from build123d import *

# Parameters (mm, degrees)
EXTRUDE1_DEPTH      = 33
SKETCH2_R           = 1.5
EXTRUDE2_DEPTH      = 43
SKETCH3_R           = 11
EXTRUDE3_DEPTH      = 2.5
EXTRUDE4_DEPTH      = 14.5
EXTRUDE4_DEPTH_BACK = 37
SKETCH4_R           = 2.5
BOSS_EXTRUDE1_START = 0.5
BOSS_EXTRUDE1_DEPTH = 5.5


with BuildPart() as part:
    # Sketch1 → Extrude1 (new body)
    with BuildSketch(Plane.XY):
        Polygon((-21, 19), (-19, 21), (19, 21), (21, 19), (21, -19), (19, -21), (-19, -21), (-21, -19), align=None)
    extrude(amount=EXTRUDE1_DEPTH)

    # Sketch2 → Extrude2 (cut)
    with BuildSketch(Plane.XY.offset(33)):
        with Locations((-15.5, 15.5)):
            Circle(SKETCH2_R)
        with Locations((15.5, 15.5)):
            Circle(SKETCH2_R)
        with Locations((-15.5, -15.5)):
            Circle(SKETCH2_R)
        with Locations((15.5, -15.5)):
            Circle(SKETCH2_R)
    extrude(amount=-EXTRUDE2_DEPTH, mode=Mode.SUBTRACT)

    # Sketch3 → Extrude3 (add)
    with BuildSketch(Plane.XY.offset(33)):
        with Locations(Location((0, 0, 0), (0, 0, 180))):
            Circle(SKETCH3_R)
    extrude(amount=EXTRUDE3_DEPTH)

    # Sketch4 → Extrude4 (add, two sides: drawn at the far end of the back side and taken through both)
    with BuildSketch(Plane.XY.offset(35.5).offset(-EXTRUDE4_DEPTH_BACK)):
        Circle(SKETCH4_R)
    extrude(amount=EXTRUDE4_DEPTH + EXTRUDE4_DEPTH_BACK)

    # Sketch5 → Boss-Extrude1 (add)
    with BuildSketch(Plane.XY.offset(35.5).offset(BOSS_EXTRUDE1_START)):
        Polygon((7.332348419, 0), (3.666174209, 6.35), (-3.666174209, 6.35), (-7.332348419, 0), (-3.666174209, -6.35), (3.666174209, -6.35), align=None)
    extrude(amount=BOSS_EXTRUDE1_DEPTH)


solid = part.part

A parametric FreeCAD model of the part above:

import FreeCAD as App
import Part
import Sketcher
Q = App.Units.Quantity

doc = App.newDocument("Part")
body = doc.addObject("PartDesign::Body", "Body")

sketch1 = body.newObject("Sketcher::SketchObject", "Sketch")
sketch1.AttachmentSupport = (doc.getObject("XY_Plane"), [""])
sketch1.MapMode = "FlatFace"
sketch1.addGeometry([
    Part.LineSegment(App.Vector(-19, 21, 0), App.Vector(-21, 19, 0)),
    Part.LineSegment(App.Vector(-21, 19, 0), App.Vector(-21, -19, 0)),
    Part.LineSegment(App.Vector(-21, -19, 0), App.Vector(-19, -21, 0)),
    Part.LineSegment(App.Vector(-19, -21, 0), App.Vector(19, -21, 0)),
    Part.LineSegment(App.Vector(19, -21, 0), App.Vector(21, -19, 0)),
    Part.LineSegment(App.Vector(21, -19, 0), App.Vector(21, 19, 0)),
    Part.LineSegment(App.Vector(21, 19, 0), App.Vector(19, 21, 0)),
    Part.LineSegment(App.Vector(19, 21, 0), App.Vector(-19, 21, 0)),
], False)
sketch1.addConstraint([
    Sketcher.Constraint("Coincident", 0, 2, 1, 1),
    Sketcher.Constraint("Coincident", 1, 2, 2, 1),
    Sketcher.Constraint("Coincident", 2, 2, 3, 1),
    Sketcher.Constraint("Coincident", 3, 2, 4, 1),
    Sketcher.Constraint("Coincident", 4, 2, 5, 1),
    Sketcher.Constraint("Coincident", 5, 2, 6, 1),
    Sketcher.Constraint("Coincident", 6, 2, 7, 1),
    Sketcher.Constraint("Coincident", 7, 2, 0, 1),
    Sketcher.Constraint("Vertical", 1),
    Sketcher.Constraint("Horizontal", 3),
    Sketcher.Constraint("Vertical", 5),
    Sketcher.Constraint("Horizontal", 7),
    Sketcher.Constraint("Symmetric", 0, 2, 4, 2, -1, 1),
    Sketcher.Constraint("Symmetric", 2, 2, 6, 2, -1, 1),
    Sketcher.Constraint("Perpendicular", 0, 2),
    Sketcher.Constraint("Perpendicular", 2, 4),
    Sketcher.Constraint("Perpendicular", 4, 6),
    Sketcher.Constraint("Horizontal", 1, 2, 4, 2),
    Sketcher.Constraint("Vertical", 3, 2, 6, 2),
    Sketcher.Constraint("Equal", 7, 1),
    Sketcher.Constraint("DistanceX", 3, 1, 3, 2, 38.0),
    Sketcher.Constraint("DistanceX", 0, 2, -1, 1, 21.0),
])
pad1 = body.newObject("PartDesign::Pad", "Pad")
pad1.Profile = sketch1
pad1.Length = 33

sketch2 = body.newObject("Sketcher::SketchObject", "Sketch001")
sketch2.AttachmentSupport = (doc.getObject("XY_Plane"), [""])
sketch2.MapMode = "FlatFace"
sketch2.AttachmentOffset = App.Placement(App.Vector(0, 0, 33), App.Rotation())
sketch2.addGeometry([
    Part.Circle(App.Vector(-15.5, 15.5, 0), App.Vector(0, 0, 1), 1.5),
    Part.Circle(App.Vector(15.5, 15.5, 0), App.Vector(0, 0, 1), 1.5),
    Part.Circle(App.Vector(-15.5, -15.5, 0), App.Vector(0, 0, 1), 1.5),
    Part.Circle(App.Vector(15.5, -15.5, 0), App.Vector(0, 0, 1), 1.5),
], False)
sketch2.addConstraint([
    Sketcher.Constraint("Equal", 0, 1),
    Sketcher.Constraint("Equal", 1, 2),
    Sketcher.Constraint("Equal", 2, 3),
    Sketcher.Constraint("Symmetric", 1, 3, 2, 3, -1, 1),
    Sketcher.Constraint("Symmetric", 0, 3, 3, 3, -1, 1),
    Sketcher.Constraint("Symmetric", 0, 3, 1, 3, -2),
    Sketcher.Constraint("Diameter", 0, 3.0),
    Sketcher.Constraint("DistanceX", 0, 3, 1, 3, 31.0),
    Sketcher.Constraint("DistanceY", 2, 3, 0, 3, 31.0),
])
pocket1 = body.newObject("PartDesign::Pocket", "Pocket")
pocket1.Profile = sketch2
pocket1.Length = 43

sketch3 = body.newObject("Sketcher::SketchObject", "Sketch002")
sketch3.AttachmentSupport = (doc.getObject("XY_Plane"), [""])
sketch3.MapMode = "FlatFace"
sketch3.AttachmentOffset = App.Placement(App.Vector(0, 0, 33), App.Rotation())
sketch3.addGeometry(Part.Circle(App.Vector(0, 0, 0), App.Vector(0, 0, 1), 11), False)
sketch3.addConstraint([
    Sketcher.Constraint("Coincident", 0, 3, -1, 1),
    Sketcher.Constraint("Diameter", 0, 22.0),
])
pad2 = body.newObject("PartDesign::Pad", "Pad001")
pad2.Profile = sketch3
pad2.Length = 2.5

sketch4 = body.newObject("Sketcher::SketchObject", "Sketch003")
sketch4.AttachmentSupport = (doc.getObject("XY_Plane"), [""])
sketch4.MapMode = "FlatFace"
sketch4.AttachmentOffset = App.Placement(App.Vector(0, 0, 35.5), App.Rotation())
sketch4.addGeometry(Part.Circle(App.Vector(0, 0, 0), App.Vector(0, 0, 1), 2.5), False)
sketch4.addConstraint([
    Sketcher.Constraint("Coincident", 0, 3, -1, 1),
    Sketcher.Constraint("Diameter", 0, 5.0),
])
pad3 = body.newObject("PartDesign::Pad", "Pad002")
pad3.Profile = sketch4
pad3.Type = "TwoLengths"
pad3.Length = 14.5
pad3.Length2 = 37

sketch5 = body.newObject("Sketcher::SketchObject", "Sketch004")
sketch5.AttachmentSupport = (doc.getObject("XY_Plane"), [""])
sketch5.MapMode = "FlatFace"
sketch5.AttachmentOffset = App.Placement(App.Vector(0, 0, 36), App.Rotation())
sketch5.addGeometry([
    Part.LineSegment(App.Vector(7, 0, 0), App.Vector(4, 6, 0)),
    Part.LineSegment(App.Vector(4, 6, 0), App.Vector(-4, 6, 0)),
    Part.LineSegment(App.Vector(-4, 6, 0), App.Vector(-7, 0, 0)),
    Part.LineSegment(App.Vector(-7, 0, 0), App.Vector(-4, -6, 0)),
    Part.LineSegment(App.Vector(-4, -6, 0), App.Vector(4, -6, 0)),
    Part.LineSegment(App.Vector(4, -6, 0), App.Vector(7, 0, 0)),
], False)
sketch5.addConstraint([
    Sketcher.Constraint("Coincident", 0, 2, 1, 1),
    Sketcher.Constraint("Coincident", 1, 2, 2, 1),
    Sketcher.Constraint("Coincident", 2, 2, 3, 1),
    Sketcher.Constraint("Coincident", 3, 2, 4, 1),
    Sketcher.Constraint("Coincident", 4, 2, 5, 1),
    Sketcher.Constraint("Coincident", 5, 2, 0, 1),
    Sketcher.Constraint("Horizontal", 1),
    Sketcher.Constraint("Horizontal", 4),
    Sketcher.Constraint("Symmetric", 0, 2, 3, 2, -1, 1),
    Sketcher.Constraint("Symmetric", 2, 2, 5, 2, -1, 1),
    Sketcher.Constraint("PointOnObject", 2, 2, -1),
    Sketcher.Constraint("Parallel", 2, 5),
    Sketcher.Constraint("Vertical", 1, 2, 3, 2),
    Sketcher.Constraint("Angle", 0, Q("120 deg")),
    Sketcher.Constraint("DistanceY", 3, 2, 1, 2, 12.7),
    Sketcher.Constraint("DistanceX", 1, 2, 1, 1, 7.332348),
])
pad4 = body.newObject("PartDesign::Pad", "Pad003")
pad4.Profile = sketch5
pad4.Length = 5.5

doc.recompute()
